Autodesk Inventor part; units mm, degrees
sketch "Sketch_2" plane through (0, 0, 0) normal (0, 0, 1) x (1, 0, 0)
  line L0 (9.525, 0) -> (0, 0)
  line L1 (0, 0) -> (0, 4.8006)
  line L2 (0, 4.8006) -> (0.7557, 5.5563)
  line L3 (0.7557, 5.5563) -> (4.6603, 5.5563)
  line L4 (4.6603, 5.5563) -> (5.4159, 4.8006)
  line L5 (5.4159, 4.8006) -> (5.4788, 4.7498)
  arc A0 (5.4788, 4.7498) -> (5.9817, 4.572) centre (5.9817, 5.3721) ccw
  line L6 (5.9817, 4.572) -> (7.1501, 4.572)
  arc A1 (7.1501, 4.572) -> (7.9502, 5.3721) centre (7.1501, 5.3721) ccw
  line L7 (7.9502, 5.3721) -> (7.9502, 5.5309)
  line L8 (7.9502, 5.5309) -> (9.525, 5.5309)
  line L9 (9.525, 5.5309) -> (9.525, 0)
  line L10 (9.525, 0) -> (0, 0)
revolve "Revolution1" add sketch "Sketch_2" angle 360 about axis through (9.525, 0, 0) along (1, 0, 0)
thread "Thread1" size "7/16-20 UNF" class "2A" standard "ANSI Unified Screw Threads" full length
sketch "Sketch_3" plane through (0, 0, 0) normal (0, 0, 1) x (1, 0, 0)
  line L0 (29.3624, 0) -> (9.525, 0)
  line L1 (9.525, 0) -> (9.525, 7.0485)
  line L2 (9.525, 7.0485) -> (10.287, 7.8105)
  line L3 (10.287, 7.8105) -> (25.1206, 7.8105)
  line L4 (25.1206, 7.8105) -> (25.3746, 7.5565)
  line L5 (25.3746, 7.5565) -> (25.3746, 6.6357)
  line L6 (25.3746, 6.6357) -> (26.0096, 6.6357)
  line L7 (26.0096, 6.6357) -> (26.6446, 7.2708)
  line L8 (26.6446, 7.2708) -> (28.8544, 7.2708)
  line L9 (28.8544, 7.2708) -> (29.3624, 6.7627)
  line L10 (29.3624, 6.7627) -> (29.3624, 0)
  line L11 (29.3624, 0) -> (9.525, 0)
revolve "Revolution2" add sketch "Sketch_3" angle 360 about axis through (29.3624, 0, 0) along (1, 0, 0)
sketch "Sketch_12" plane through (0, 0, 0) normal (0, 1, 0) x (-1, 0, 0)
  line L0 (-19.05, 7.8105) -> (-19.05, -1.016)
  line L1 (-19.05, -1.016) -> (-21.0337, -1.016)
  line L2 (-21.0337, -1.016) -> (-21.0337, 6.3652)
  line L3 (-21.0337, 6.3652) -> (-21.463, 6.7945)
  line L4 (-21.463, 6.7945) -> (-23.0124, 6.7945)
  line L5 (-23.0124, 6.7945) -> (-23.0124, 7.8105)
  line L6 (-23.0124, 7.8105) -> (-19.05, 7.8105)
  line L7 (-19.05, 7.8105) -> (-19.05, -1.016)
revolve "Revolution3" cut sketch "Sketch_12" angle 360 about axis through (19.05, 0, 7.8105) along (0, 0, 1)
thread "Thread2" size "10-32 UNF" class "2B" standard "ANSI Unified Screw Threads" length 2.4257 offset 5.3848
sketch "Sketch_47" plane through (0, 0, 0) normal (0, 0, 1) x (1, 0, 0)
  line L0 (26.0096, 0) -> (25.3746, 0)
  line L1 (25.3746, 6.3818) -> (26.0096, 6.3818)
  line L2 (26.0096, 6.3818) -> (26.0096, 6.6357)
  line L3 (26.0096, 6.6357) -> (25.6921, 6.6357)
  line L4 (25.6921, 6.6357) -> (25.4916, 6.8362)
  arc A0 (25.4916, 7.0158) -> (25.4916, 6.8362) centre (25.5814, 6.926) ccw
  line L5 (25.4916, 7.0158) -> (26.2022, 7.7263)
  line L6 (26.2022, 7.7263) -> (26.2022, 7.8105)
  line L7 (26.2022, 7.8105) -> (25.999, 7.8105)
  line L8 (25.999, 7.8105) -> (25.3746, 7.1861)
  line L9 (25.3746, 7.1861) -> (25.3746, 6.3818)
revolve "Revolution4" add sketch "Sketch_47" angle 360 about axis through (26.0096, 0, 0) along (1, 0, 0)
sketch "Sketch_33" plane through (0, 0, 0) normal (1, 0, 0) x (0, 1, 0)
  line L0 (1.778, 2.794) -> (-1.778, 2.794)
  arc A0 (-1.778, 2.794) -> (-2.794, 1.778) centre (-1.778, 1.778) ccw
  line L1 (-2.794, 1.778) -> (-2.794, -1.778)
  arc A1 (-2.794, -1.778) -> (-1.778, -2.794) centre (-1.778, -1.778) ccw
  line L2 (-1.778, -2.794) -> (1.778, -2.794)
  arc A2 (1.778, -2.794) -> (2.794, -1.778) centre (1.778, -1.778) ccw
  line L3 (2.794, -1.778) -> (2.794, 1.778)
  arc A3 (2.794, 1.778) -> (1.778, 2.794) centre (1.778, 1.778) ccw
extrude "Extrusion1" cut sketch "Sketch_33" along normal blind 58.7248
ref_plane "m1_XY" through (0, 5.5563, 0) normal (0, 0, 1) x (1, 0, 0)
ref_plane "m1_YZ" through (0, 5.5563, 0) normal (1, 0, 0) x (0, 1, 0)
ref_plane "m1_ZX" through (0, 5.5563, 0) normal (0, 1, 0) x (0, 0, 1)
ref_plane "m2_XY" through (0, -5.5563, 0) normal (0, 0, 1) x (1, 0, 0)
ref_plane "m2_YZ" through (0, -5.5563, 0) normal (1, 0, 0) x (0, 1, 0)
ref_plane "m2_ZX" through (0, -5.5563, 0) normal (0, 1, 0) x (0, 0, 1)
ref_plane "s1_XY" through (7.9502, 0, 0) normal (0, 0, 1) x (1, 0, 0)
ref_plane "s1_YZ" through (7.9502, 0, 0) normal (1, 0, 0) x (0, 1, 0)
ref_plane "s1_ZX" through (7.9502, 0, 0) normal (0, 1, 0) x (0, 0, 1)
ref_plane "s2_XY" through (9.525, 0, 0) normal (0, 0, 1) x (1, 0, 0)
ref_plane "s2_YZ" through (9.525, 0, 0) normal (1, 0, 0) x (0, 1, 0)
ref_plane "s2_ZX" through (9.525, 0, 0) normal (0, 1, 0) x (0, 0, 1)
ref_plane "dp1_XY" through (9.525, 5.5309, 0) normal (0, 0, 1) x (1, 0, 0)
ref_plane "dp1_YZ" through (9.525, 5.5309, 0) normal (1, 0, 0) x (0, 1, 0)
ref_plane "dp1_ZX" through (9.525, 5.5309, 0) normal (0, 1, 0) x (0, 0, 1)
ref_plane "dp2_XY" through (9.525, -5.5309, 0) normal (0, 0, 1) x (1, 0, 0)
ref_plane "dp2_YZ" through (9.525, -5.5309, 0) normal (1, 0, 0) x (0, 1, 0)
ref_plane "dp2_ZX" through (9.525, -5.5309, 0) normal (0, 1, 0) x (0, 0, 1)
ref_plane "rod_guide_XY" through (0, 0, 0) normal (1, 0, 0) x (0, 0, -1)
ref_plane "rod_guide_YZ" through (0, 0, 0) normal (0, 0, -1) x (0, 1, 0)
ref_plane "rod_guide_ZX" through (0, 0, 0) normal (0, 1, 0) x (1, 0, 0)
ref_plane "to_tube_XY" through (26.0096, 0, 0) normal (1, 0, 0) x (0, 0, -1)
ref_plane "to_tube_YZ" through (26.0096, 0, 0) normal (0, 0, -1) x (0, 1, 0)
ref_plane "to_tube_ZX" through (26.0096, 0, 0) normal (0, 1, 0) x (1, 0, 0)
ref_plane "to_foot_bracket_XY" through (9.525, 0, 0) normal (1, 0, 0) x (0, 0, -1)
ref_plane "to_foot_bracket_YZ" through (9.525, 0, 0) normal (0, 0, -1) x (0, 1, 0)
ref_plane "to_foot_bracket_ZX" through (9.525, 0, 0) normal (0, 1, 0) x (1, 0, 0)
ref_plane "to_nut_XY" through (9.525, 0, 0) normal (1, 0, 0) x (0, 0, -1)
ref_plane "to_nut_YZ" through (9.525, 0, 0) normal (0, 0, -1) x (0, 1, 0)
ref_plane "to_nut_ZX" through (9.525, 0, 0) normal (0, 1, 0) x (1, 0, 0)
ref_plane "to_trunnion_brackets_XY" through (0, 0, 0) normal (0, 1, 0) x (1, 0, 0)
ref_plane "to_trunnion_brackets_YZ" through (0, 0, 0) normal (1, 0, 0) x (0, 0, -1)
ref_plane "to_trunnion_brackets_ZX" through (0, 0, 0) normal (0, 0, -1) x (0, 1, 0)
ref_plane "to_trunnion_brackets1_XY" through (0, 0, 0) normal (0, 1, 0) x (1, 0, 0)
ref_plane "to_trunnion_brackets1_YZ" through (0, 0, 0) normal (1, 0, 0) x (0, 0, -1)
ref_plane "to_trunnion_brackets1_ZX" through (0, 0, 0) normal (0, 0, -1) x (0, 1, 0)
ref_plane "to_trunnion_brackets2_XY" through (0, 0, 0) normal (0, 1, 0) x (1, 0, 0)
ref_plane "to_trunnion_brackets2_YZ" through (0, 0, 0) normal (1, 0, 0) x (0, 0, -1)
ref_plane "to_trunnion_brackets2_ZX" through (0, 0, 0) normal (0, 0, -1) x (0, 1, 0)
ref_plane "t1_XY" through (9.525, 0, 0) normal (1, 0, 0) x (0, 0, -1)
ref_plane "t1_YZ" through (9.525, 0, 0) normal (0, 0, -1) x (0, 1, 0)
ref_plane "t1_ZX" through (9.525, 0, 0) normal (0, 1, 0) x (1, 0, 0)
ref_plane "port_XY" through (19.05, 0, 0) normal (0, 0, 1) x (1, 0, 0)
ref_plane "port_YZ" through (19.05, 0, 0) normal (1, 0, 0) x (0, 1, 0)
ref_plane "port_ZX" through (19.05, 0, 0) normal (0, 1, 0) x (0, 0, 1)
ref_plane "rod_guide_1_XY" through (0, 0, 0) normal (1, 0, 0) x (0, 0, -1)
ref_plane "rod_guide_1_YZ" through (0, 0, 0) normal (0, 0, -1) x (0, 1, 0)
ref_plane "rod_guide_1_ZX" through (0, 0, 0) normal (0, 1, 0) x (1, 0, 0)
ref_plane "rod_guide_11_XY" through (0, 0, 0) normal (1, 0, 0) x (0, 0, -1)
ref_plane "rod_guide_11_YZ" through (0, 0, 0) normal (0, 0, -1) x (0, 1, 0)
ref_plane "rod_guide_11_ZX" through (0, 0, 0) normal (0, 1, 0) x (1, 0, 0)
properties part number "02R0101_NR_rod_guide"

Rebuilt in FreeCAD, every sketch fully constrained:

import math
import FreeCAD as App
import Part
import Sketcher

V = App.Vector
Q = App.Units.Quantity

doc = App.newDocument("Part")
body = doc.addObject("PartDesign::Body", "Body")

# Sketch on XY plane
sketch1 = body.newObject("Sketcher::SketchObject", "Sketch")
sketch1.AttachmentSupport = (doc.getObject("XY_Plane"), [""])
sketch1.MapMode = "FlatFace"
sketch1.addGeometry([
    Part.LineSegment(V(0, 0, 0), V(9.525, 0, 0)),  # 0
    Part.LineSegment(V(9.525, 0, 0), V(9.525, 5.5309, 0)),  # 1
    Part.LineSegment(V(9.525, 5.5309, 0), V(7.9502, 5.5309, 0)),  # 2
    Part.LineSegment(V(7.9502, 5.5309, 0), V(7.9502, 5.3721, 0)),  # 3
    Part.ArcOfCircle(Part.Circle(V(7.1501, 5.3721, 0), V(0, 0, 1), 0.8001), math.radians(-90), math.radians(0)),  # 4
    Part.LineSegment(V(7.1501, 4.572, 0), V(5.9817, 4.572, 0)),  # 5
    Part.ArcOfCircle(Part.Circle(V(5.9817, 5.3721, 0), V(0, 0, 1), 0.800104), math.radians(-128.942756), math.radians(-90)),  # 6
    Part.LineSegment(V(5.4788, 4.7498, 0), V(5.4159, 4.8006, 0)),  # 7
    Part.LineSegment(V(5.4159, 4.8006, 0), V(4.6603, 5.5563, 0)),  # 8
    Part.LineSegment(V(4.6603, 5.5563, 0), V(0.7557, 5.5563, 0)),  # 9
    Part.LineSegment(V(0.7557, 5.5563, 0), V(0, 4.8006, 0)),  # 10
    Part.LineSegment(V(0, 4.8006, 0), V(0, 0, 0)),  # 11
], False)
sketch1.addConstraint([
    Sketcher.Constraint("Coincident", 0, 2, 1, 1),
    Sketcher.Constraint("Coincident", 1, 2, 2, 1),
    Sketcher.Constraint("Coincident", 2, 2, 3, 1),
    Sketcher.Constraint("Tangent", 3, 2, 4, 2),
    Sketcher.Constraint("Tangent", 4, 1, 5, 1),
    Sketcher.Constraint("Tangent", 5, 2, 6, 2),
    Sketcher.Constraint("Tangent", 6, 1, 7, 1),
    Sketcher.Constraint("Coincident", 7, 2, 8, 1),
    Sketcher.Constraint("Coincident", 8, 2, 9, 1),
    Sketcher.Constraint("Coincident", 9, 2, 10, 1),
    Sketcher.Constraint("Coincident", 10, 2, 11, 1),
    Sketcher.Constraint("Coincident", 11, 2, 0, 1),
    Sketcher.Constraint("Horizontal", 0),
    Sketcher.Constraint("Vertical", 1),
    Sketcher.Constraint("Horizontal", 2),
    Sketcher.Constraint("Vertical", 3),
    Sketcher.Constraint("Horizontal", 5),
    Sketcher.Constraint("Horizontal", 9),
    Sketcher.Constraint("Vertical", 11),
    Sketcher.Constraint("Coincident", 11, 2, -1, 1),
    Sketcher.Constraint("Equal", 4, 6),
    Sketcher.Constraint("Perpendicular", 8, 10),
    Sketcher.Constraint("Horizontal", 7, 2, 10, 2),
    Sketcher.Constraint("Equal", 8, 10),
    Sketcher.Constraint("Radius", 4, Q("0.0315 in")),
    Sketcher.Constraint("DistanceX", 0, 1, 0, 2, Q("0.375 in")),
    Sketcher.Constraint("DistanceX", 2, 2, 2, 1, Q("0.062 in")),
    Sketcher.Constraint("DistanceX", 5, 2, 5, 1, Q("0.046 in")),
    Sketcher.Constraint("DistanceY", 11, 2, 11, 1, Q("0.189 in")),
    Sketcher.Constraint("DistanceY", -1, 1, 4, 1, Q("0.18 in")),
    Sketcher.Constraint("DistanceY", -1, 1, 6, 1, Q("0.187 in")),
    Sketcher.Constraint("DistanceY", -1, 1, 8, 2, Q("0.218752 in")),
    Sketcher.Constraint("DistanceY", 1, 1, 1, 2, Q("5.531 mm")),
])
revolution = body.newObject("PartDesign::Revolution", "Revolution")
revolution.Profile = sketch1
revolution.ReferenceAxis = (sketch1, ["H_Axis"])
revolution.Angle = 360

# Sketch on XY plane
sketch2 = body.newObject("Sketcher::SketchObject", "Sketch001")
sketch2.AttachmentSupport = (doc.getObject("XY_Plane"), [""])
sketch2.MapMode = "FlatFace"
sketch2.addGeometry([
    Part.LineSegment(V(9.525, 0, 0), V(29.3624, 0, 0)),  # 0
    Part.LineSegment(V(29.3624, 0, 0), V(29.3624, 6.7627, 0)),  # 1
    Part.LineSegment(V(29.3624, 6.7627, 0), V(28.8544, 7.2708, 0)),  # 2
    Part.LineSegment(V(28.8544, 7.2708, 0), V(26.6446, 7.2708, 0)),  # 3
    Part.LineSegment(V(26.6446, 7.2708, 0), V(26.0096, 6.6357, 0)),  # 4
    Part.LineSegment(V(26.0096, 6.6357, 0), V(25.3746, 6.6357, 0)),  # 5
    Part.LineSegment(V(25.3746, 6.6357, 0), V(25.3746, 7.5565, 0)),  # 6
    Part.LineSegment(V(25.3746, 7.5565, 0), V(25.1206, 7.8105, 0)),  # 7
    Part.LineSegment(V(25.1206, 7.8105, 0), V(10.287, 7.8105, 0)),  # 8
    Part.LineSegment(V(10.287, 7.8105, 0), V(9.525, 7.0485, 0)),  # 9
    Part.LineSegment(V(9.525, 7.0485, 0), V(9.525, 0, 0)),  # 10
], False)
sketch2.addConstraint([
    Sketcher.Constraint("Coincident", 0, 2, 1, 1),
    Sketcher.Constraint("Coincident", 1, 2, 2, 1),
    Sketcher.Constraint("Coincident", 2, 2, 3, 1),
    Sketcher.Constraint("Coincident", 3, 2, 4, 1),
    Sketcher.Constraint("Coincident", 4, 2, 5, 1),
    Sketcher.Constraint("Coincident", 5, 2, 6, 1),
    Sketcher.Constraint("Coincident", 6, 2, 7, 1),
    Sketcher.Constraint("Coincident", 7, 2, 8, 1),
    Sketcher.Constraint("Coincident", 8, 2, 9, 1),
    Sketcher.Constraint("Coincident", 9, 2, 10, 1),
    Sketcher.Constraint("Coincident", 10, 2, 0, 1),
    Sketcher.Constraint("Horizontal", 0),
    Sketcher.Constraint("Vertical", 1),
    Sketcher.Constraint("Horizontal", 3),
    Sketcher.Constraint("Horizontal", 5),
    Sketcher.Constraint("Vertical", 6),
    Sketcher.Constraint("Horizontal", 8),
    Sketcher.Constraint("Vertical", 10),
    Sketcher.Constraint("PointOnObject", 0, 2, -1),
    Sketcher.Constraint("Perpendicular", 2, 4),
    Sketcher.Constraint("Perpendicular", 4, 7),
    Sketcher.Constraint("Perpendicular", 7, 9),
    Sketcher.Constraint("Angle", 7, Q("135 deg")),
    Sketcher.Constraint("DistanceX", 0, 1, 0, 2, Q("0.781 in")),
    Sketcher.Constraint("DistanceX", 3, 2, 3, 1, Q("0.087 in")),
    Sketcher.Constraint("DistanceX", 5, 2, 5, 1, Q("0.025 in")),
    Sketcher.Constraint("DistanceX", 8, 2, 8, 1, Q("0.584 in")),
    Sketcher.Constraint("DistanceX", 2, 2, 1, 2, Q("0.02 in")),
    Sketcher.Constraint("DistanceX", 5, 2, 3, 2, Q("0.05 in")),
    Sketcher.Constraint("DistanceX", 7, 2, 6, 2, Q("0.01 in")),
    Sketcher.Constraint("DistanceY", 10, 2, 10, 1, Q("0.2775 in")),
    Sketcher.Constraint("DistanceX", -1, 1, 0, 2, Q("1.156 in")),
    Sketcher.Constraint("DistanceY", 1, 2, 6, 2, Q("0.031252 in")),
])
revolution2 = body.newObject("PartDesign::Revolution", "Revolution001")
revolution2.Profile = sketch2
revolution2.ReferenceAxis = (sketch2, ["H_Axis"])
revolution2.Angle = 360

# Sketch on XZ plane
sketch3 = body.newObject("Sketcher::SketchObject", "Sketch002")
sketch3.AttachmentSupport = (doc.getObject("XZ_Plane"), [""])
sketch3.MapMode = "FlatFace"
sketch3.addGeometry([
    Part.LineSegment(V(19.05, -1.016, 0), V(19.05, 7.8105, 0)),  # 0
    Part.LineSegment(V(19.05, 7.8105, 0), V(23.0124, 7.8105, 0)),  # 1
    Part.LineSegment(V(23.0124, 7.8105, 0), V(23.0124, 6.7945, 0)),  # 2
    Part.LineSegment(V(23.0124, 6.7945, 0), V(21.463, 6.7945, 0)),  # 3
    Part.LineSegment(V(21.463, 6.7945, 0), V(21.0337, 6.3652, 0)),  # 4
    Part.LineSegment(V(21.0337, 6.3652, 0), V(21.0337, -1.016, 0)),  # 5
    Part.LineSegment(V(21.0337, -1.016, 0), V(19.05, -1.016, 0)),  # 6
], False)
sketch3.addGeometry(Part.LineSegment(V(19.05, -1.016, 0), V(19.05, 7.8105, 0)), True)  # axis
sketch3.addConstraint([
    Sketcher.Constraint("Coincident", 0, 2, 1, 1),
    Sketcher.Constraint("Coincident", 1, 2, 2, 1),
    Sketcher.Constraint("Coincident", 2, 2, 3, 1),
    Sketcher.Constraint("Coincident", 3, 2, 4, 1),
    Sketcher.Constraint("Coincident", 4, 2, 5, 1),
    Sketcher.Constraint("Coincident", 5, 2, 6, 1),
    Sketcher.Constraint("Coincident", 6, 2, 0, 1),
    Sketcher.Constraint("Vertical", 0),
    Sketcher.Constraint("Horizontal", 1),
    Sketcher.Constraint("Vertical", 2),
    Sketcher.Constraint("Horizontal", 3),
    Sketcher.Constraint("Vertical", 5),
    Sketcher.Constraint("Horizontal", 6),
    Sketcher.Constraint("Vertical", 7),
    Sketcher.Constraint("Coincident", 7, 1, 6, 2),
    Sketcher.Constraint("Horizontal", 1, 2, 7, 2),
    Sketcher.Constraint("Angle", 4, Q("-135 deg")),
    Sketcher.Constraint("DistanceY", 2, 2, 2, 1, Q("0.04 in")),
    Sketcher.Constraint("DistanceX", 1, 1, 1, 2, Q("0.156 in")),
    Sketcher.Constraint("DistanceX", 3, 2, 3, 1, Q("0.061 in")),
    Sketcher.Constraint("DistanceX", -1, 1, 0, 2, Q("0.75 in")),
    Sketcher.Constraint("DistanceY", 5, 2, -1, 1, Q("0.04 in")),
    Sketcher.Constraint("DistanceX", 6, 2, 6, 1, Q("0.0781 in")),
    Sketcher.Constraint("DistanceY", 0, 1, 0, 2, Q("0.3475 in")),
])
groove = body.newObject("PartDesign::Groove", "Groove")
groove.Profile = sketch3
groove.ReferenceAxis = (sketch3, ["Axis0"])
groove.Angle = 360

# Sketch on XY plane
sketch4 = body.newObject("Sketcher::SketchObject", "Sketch003")
sketch4.AttachmentSupport = (doc.getObject("XY_Plane"), [""])
sketch4.MapMode = "FlatFace"
sketch4.addGeometry([
    Part.LineSegment(V(25.3746, 7.1861, 0), V(25.3746, 6.3818, 0)),  # 0
    Part.LineSegment(V(25.3746, 6.3818, 0), V(26.0096, 6.3818, 0)),  # 1
    Part.LineSegment(V(26.0096, 6.3818, 0), V(26.0096, 6.6357, 0)),  # 2
    Part.LineSegment(V(26.0096, 6.6357, 0), V(25.6921, 6.6357, 0)),  # 3
    Part.LineSegment(V(25.6921, 6.6357, 0), V(25.4916, 6.8362, 0)),  # 4
    Part.ArcOfCircle(Part.Circle(V(25.5814, 6.926, 0), V(0, 0, 1), 0.126996), math.radians(135), math.radians(225)),  # 5
    Part.LineSegment(V(25.4916, 7.0158, 0), V(26.2022, 7.7263, 0)),  # 6
    Part.LineSegment(V(26.2022, 7.7263, 0), V(26.2022, 7.8105, 0)),  # 7
    Part.LineSegment(V(26.2022, 7.8105, 0), V(25.999, 7.8105, 0)),  # 8
    Part.LineSegment(V(25.999, 7.8105, 0), V(25.3746, 7.1861, 0)),  # 9
], False)
sketch4.addConstraint([
    Sketcher.Constraint("Coincident", 0, 2, 1, 1),
    Sketcher.Constraint("Coincident", 1, 2, 2, 1),
    Sketcher.Constraint("Coincident", 2, 2, 3, 1),
    Sketcher.Constraint("Coincident", 3, 2, 4, 1),
    Sketcher.Constraint("Tangent", 4, 2, 5, 2),
    Sketcher.Constraint("Tangent", 5, 1, 6, 1),
    Sketcher.Constraint("Coincident", 6, 2, 7, 1),
    Sketcher.Constraint("Coincident", 7, 2, 8, 1),
    Sketcher.Constraint("Coincident", 8, 2, 9, 1),
    Sketcher.Constraint("Coincident", 9, 2, 0, 1),
    Sketcher.Constraint("Vertical", 0),
    Sketcher.Constraint("Horizontal", 1),
    Sketcher.Constraint("Vertical", 2),
    Sketcher.Constraint("Horizontal", 3),
    Sketcher.Constraint("Vertical", 7),
    Sketcher.Constraint("Horizontal", 8),
    Sketcher.Constraint("Perpendicular", 4, 6),
    Sketcher.Constraint("Parallel", 6, 9),
    Sketcher.Constraint("Vertical", 4, 2, 5, 1),
    Sketcher.Constraint("Radius", 5, Q("0.005 in")),
    Sketcher.Constraint("DistanceY", 2, 1, 2, 2, Q("0.01 in")),
    Sketcher.Constraint("DistanceX", 1, 1, 1, 2, Q("0.025 in")),
    Sketcher.Constraint("DistanceX", 8, 2, 8, 1, Q("0.008 in")),
    Sketcher.Constraint("DistanceX", 3, 2, 3, 1, Q("0.0125 in")),
    Sketcher.Constraint("DistanceX", -1, 1, 0, 2, Q("0.999 in")),
    Sketcher.Constraint("DistanceY", 0, 2, 0, 1, Q("0.8043 mm")),
    Sketcher.Constraint("DistanceY", 7, 1, 7, 2, Q("0.0842 mm")),
    Sketcher.Constraint("DistanceY", -1, 1, 7, 2, Q("0.3075 in")),
    Sketcher.Constraint("DistanceY", 5, 3, 6, 2, Q("0.0315 in")),
])
revolution3 = body.newObject("PartDesign::Revolution", "Revolution002")
revolution3.Profile = sketch4
revolution3.ReferenceAxis = (sketch4, ["H_Axis"])
revolution3.Angle = 360

# Sketch on YZ plane
sketch5 = body.newObject("Sketcher::SketchObject", "Sketch004")
sketch5.AttachmentSupport = (doc.getObject("YZ_Plane"), [""])
sketch5.MapMode = "FlatFace"
sketch5.addGeometry([
    Part.ArcOfCircle(Part.Circle(V(1.778, 1.778, 0), V(0, 0, 1), 1.016), math.radians(0), math.radians(90)),  # 0
    Part.LineSegment(V(1.778, 2.794, 0), V(-1.778, 2.794, 0)),  # 1
    Part.ArcOfCircle(Part.Circle(V(-1.778, 1.778, 0), V(0, 0, 1), 1.016), math.radians(90), math.radians(180)),  # 2
    Part.LineSegment(V(-2.794, 1.778, 0), V(-2.794, -1.778, 0)),  # 3
    Part.ArcOfCircle(Part.Circle(V(-1.778, -1.778, 0), V(0, 0, 1), 1.016), math.radians(180), math.radians(270)),  # 4
    Part.LineSegment(V(-1.778, -2.794, 0), V(1.778, -2.794, 0)),  # 5
    Part.ArcOfCircle(Part.Circle(V(1.778, -1.778, 0), V(0, 0, 1), 1.016), math.radians(-90), math.radians(0)),  # 6
    Part.LineSegment(V(2.794, -1.778, 0), V(2.794, 1.778, 0)),  # 7
], False)
sketch5.addConstraint([
    Sketcher.Constraint("Tangent", 0, 2, 1, 1),
    Sketcher.Constraint("Tangent", 1, 2, 2, 1),
    Sketcher.Constraint("Tangent", 2, 2, 3, 1),
    Sketcher.Constraint("Tangent", 3, 2, 4, 1),
    Sketcher.Constraint("Tangent", 4, 2, 5, 1),
    Sketcher.Constraint("Tangent", 5, 2, 6, 1),
    Sketcher.Constraint("Tangent", 6, 2, 7, 1),
    Sketcher.Constraint("Tangent", 7, 2, 0, 1),
    Sketcher.Constraint("Horizontal", 1),
    Sketcher.Constraint("Vertical", 3),
    Sketcher.Constraint("Horizontal", 5),
    Sketcher.Constraint("Vertical", 7),
    Sketcher.Constraint("Equal", 0, 2),
    Sketcher.Constraint("Equal", 2, 4),
    Sketcher.Constraint("Equal", 4, 6),
    Sketcher.Constraint("Symmetric", 0, 3, 4, 3, -1, 1),
    Sketcher.Constraint("Equal", 5, 3),
    Sketcher.Constraint("Radius", 0, Q("0.04 in")),
    Sketcher.Constraint("DistanceX", 1, 2, 1, 1, Q("0.14 in")),
])
pocket1 = body.newObject("PartDesign::Pocket", "Pocket")
pocket1.Profile = sketch5
pocket1.Length = Q("2.312 in")
pocket1.Reversed = True

doc.recompute()
